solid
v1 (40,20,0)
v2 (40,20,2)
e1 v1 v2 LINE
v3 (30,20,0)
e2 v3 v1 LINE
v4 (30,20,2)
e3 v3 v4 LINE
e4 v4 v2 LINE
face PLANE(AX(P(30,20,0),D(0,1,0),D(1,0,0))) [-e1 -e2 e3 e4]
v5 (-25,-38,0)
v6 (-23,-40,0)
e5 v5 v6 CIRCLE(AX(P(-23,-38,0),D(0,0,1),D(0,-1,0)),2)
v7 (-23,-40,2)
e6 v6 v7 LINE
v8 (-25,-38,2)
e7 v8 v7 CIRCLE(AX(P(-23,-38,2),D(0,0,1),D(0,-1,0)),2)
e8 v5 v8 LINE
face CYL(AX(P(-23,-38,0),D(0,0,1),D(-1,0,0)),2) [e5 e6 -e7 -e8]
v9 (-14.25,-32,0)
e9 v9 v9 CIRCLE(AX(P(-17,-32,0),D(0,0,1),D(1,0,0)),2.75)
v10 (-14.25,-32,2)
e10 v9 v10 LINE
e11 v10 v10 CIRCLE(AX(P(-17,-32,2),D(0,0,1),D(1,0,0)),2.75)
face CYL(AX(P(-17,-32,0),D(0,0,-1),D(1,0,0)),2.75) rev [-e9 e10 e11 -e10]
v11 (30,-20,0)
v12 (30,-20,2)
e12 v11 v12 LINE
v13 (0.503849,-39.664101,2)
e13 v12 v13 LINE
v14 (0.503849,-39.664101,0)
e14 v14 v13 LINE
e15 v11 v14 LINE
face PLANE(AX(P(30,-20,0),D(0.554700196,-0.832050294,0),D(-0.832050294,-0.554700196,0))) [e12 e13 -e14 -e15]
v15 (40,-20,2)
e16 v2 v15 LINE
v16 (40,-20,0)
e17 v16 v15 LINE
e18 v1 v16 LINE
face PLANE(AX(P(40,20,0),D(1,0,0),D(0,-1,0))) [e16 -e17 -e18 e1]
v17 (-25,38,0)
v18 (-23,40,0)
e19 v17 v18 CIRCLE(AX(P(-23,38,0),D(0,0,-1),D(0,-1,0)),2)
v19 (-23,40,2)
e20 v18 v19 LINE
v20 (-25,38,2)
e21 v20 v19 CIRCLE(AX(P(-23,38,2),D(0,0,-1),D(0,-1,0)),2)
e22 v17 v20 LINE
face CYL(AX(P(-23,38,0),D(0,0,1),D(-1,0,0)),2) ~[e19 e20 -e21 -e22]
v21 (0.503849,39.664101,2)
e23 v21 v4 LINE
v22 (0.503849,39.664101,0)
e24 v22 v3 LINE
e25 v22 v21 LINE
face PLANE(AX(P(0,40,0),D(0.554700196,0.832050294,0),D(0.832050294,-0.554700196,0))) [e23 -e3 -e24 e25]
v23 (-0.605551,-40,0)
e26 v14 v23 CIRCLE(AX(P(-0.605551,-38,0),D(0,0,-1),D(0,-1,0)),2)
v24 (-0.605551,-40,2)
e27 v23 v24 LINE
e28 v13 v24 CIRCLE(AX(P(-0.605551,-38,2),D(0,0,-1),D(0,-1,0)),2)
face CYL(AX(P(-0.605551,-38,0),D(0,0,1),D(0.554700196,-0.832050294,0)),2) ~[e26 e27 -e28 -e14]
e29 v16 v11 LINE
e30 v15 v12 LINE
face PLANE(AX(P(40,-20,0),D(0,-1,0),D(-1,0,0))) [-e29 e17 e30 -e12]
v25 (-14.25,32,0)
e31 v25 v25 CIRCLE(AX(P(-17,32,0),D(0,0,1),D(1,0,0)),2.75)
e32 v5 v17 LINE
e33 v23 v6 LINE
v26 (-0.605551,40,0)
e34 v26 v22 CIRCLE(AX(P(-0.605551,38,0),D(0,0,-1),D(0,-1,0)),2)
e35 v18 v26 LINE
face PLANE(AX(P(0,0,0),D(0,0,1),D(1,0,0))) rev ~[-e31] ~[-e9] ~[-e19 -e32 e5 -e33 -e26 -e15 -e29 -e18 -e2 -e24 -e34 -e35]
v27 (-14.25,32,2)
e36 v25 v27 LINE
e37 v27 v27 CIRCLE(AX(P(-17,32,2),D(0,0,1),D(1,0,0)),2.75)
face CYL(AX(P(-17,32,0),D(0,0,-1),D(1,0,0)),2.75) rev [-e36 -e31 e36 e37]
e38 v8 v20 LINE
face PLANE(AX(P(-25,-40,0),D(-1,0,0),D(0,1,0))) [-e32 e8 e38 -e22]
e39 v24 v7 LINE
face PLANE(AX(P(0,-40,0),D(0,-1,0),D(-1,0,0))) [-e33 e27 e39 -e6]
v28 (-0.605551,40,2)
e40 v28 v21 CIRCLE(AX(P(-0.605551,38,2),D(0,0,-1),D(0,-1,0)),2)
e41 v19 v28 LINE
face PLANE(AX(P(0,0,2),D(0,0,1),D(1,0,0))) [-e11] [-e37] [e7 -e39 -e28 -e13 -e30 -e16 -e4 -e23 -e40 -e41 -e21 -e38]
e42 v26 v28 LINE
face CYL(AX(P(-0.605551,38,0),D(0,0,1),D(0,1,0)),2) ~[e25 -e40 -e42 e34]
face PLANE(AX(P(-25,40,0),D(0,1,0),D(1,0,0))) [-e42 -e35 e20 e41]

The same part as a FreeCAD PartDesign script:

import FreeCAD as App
import Part
import Sketcher
from FreeCAD import Vector
Q = App.Units.Quantity


def edges_at(feature, points):
    """Names of the edges that pass closest to the given points."""
    edges = feature.Shape.Edges
    near = lambda p: min(range(len(edges)), key=lambda i: edges[i].distToShape(Part.Vertex(*p))[0])
    return sorted({f"Edge{near(p) + 1}" for p in points})


def add_polygon(sketch, points):
    """Adds a closed chain of lines whose ends are joined by coincident constraints."""
    first, n = sketch.GeometryCount, len(points)
    for a, b in zip(points, points[1:] + points[:1]):
        sketch.addGeometry(Part.LineSegment(App.Vector(*a, 0), App.Vector(*b, 0)), False)
    for i in range(n):
        sketch.addConstraint(Sketcher.Constraint("Coincident", first + i, 2, first + (i + 1) % n, 1))

doc = App.newDocument("Part")
body = doc.addObject("PartDesign::Body", "Body")

sketch1 = body.newObject("Sketcher::SketchObject", "Sketch")
sketch1.AttachmentSupport = (doc.getObject("XY_Plane"), [""])
sketch1.MapMode = "FlatFace"
add_polygon(sketch1, [(-25, 40), (-25, -40), (0, -40), (30, -20), (40, -20), (40, 20), (30, 20), (0, 40)])
sketch1.addGeometry(Part.Circle(Vector(-17, -32, 0), Vector(0, 0, 1), 2.8), False)
sketch1.addGeometry(Part.Circle(Vector(-17, 32, 0), Vector(0, 0, 1), 2.8), False)
sketch1.addConstraint(Sketcher.Constraint("Vertical", 0))
sketch1.addConstraint(Sketcher.Constraint("Horizontal", 1))
sketch1.addConstraint(Sketcher.Constraint("Horizontal", 3))
sketch1.addConstraint(Sketcher.Constraint("Vertical", 4))
sketch1.addConstraint(Sketcher.Constraint("Horizontal", 5))
sketch1.addConstraint(Sketcher.Constraint("Horizontal", 7))
sketch1.addConstraint(Sketcher.Constraint("Equal", 8, 9))
sketch1.addConstraint(Sketcher.Constraint("Symmetric", 1, 2, 6, 2, -1, 1))
sketch1.addConstraint(Sketcher.Constraint("Symmetric", 8, 3, 9, 3, -1))
sketch1.addConstraint(Sketcher.Constraint("Symmetric", 2, 2, 5, 2, -1))
sketch1.addConstraint(Sketcher.Constraint("PointOnObject", 1, 2, -2))
sketch1.addConstraint(Sketcher.Constraint("Diameter", 8, Q("5.5 mm")))
sketch1.addConstraint(Sketcher.Constraint("DistanceX", 1, 1, 1, 2, Q("25 mm")))
sketch1.addConstraint(Sketcher.Constraint("DistanceX", 3, 1, 3, 2, Q("10 mm")))
sketch1.addConstraint(Sketcher.Constraint("DistanceY", 0, 2, 0, 1, Q("80 mm")))
sketch1.addConstraint(Sketcher.Constraint("DistanceY", 4, 1, 4, 2, Q("40 mm")))
sketch1.addConstraint(Sketcher.Constraint("DistanceX", -1, 1, 2, 2, Q("30 mm")))
sketch1.addConstraint(Sketcher.Constraint("DistanceX", 0, 2, 8, 3, Q("8 mm")))
sketch1.addConstraint(Sketcher.Constraint("DistanceY", 0, 2, 8, 3, Q("8 mm")))
pad1 = body.newObject("PartDesign::Pad", "Pad")
pad1.Profile = sketch1
pad1.Length = 2
doc.recompute()

fillet = body.newObject("PartDesign::Fillet", "Fillet")
fillet.Base = (pad1, edges_at(pad1, [
    (-25, 40, 1),
    (0, 40, 1),
    (0, -40, 1),
    (-25, -40, 1),
]))
fillet.Radius = 2

doc.recompute()
